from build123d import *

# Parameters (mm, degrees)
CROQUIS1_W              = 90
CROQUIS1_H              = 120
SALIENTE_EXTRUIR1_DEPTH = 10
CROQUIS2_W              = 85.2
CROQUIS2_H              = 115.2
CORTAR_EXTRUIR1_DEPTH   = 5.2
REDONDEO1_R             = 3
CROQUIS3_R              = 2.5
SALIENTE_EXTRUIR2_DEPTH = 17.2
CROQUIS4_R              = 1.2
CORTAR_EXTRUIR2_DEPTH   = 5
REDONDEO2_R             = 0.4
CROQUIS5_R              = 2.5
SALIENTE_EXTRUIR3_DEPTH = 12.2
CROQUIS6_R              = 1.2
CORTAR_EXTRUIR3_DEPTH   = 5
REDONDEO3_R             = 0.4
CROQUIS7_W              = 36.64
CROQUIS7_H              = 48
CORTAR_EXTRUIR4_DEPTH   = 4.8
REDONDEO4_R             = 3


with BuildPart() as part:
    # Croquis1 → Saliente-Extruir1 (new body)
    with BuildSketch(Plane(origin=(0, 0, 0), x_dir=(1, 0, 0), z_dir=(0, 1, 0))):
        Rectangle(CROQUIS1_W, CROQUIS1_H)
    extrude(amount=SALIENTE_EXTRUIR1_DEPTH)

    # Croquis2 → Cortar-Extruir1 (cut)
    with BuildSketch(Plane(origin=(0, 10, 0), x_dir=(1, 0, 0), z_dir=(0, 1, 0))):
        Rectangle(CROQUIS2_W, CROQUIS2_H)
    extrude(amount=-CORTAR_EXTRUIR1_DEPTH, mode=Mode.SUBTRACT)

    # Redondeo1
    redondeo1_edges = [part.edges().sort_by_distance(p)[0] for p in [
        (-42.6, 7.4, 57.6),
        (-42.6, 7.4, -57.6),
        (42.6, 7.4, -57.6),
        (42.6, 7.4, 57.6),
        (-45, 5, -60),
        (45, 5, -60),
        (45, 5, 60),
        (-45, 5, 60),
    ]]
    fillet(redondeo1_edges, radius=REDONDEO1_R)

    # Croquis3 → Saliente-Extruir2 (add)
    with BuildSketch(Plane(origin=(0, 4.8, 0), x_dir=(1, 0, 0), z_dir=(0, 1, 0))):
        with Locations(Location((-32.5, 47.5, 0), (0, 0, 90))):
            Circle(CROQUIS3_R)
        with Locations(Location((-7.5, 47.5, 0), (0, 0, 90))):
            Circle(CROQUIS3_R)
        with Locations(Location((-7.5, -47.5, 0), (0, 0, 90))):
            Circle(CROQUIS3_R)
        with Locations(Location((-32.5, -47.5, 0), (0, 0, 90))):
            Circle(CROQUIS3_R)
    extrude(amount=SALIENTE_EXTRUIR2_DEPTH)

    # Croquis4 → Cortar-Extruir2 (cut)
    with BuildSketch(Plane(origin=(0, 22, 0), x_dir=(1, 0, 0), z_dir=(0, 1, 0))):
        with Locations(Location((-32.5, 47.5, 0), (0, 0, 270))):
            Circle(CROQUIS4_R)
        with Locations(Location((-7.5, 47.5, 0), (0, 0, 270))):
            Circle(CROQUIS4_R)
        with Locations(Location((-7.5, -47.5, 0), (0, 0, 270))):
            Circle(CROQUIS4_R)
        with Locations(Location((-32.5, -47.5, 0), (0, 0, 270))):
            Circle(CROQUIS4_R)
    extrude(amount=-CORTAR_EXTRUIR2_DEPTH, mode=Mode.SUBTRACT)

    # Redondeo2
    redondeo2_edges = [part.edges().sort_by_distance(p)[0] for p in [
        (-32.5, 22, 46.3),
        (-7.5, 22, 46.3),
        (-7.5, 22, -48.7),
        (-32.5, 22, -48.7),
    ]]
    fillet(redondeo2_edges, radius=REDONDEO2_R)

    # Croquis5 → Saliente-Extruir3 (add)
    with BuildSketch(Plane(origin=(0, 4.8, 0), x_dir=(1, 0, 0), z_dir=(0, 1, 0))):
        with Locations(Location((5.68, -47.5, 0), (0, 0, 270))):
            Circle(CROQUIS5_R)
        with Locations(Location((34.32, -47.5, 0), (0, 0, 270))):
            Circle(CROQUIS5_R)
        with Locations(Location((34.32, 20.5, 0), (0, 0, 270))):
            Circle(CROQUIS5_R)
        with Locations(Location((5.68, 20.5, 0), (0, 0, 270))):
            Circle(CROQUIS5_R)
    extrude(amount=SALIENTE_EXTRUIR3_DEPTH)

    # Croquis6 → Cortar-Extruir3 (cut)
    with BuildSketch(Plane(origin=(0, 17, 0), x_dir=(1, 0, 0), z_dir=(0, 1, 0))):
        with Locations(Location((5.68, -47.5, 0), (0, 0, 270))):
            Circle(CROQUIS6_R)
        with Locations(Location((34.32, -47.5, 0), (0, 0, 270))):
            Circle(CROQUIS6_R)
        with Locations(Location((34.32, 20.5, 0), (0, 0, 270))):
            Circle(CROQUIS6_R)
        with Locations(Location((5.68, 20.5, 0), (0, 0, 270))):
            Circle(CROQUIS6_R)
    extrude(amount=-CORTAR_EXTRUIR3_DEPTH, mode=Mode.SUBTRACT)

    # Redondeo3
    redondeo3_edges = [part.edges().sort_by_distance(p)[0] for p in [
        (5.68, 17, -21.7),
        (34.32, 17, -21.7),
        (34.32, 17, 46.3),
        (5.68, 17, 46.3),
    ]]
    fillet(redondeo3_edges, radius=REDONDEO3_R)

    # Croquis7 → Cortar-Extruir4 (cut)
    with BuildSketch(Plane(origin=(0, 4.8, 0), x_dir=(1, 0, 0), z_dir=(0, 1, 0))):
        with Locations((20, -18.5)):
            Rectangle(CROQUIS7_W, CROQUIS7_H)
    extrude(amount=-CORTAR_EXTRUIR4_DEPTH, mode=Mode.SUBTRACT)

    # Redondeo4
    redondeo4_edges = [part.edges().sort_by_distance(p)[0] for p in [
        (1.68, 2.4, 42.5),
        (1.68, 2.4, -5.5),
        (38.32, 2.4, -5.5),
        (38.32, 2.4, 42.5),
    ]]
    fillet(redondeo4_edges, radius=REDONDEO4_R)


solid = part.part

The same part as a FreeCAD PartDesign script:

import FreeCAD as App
import Part
import Sketcher
from FreeCAD import Vector


def edges_at(feature, points):
    """Names of the edges that pass closest to the given points."""
    edges = feature.Shape.Edges
    near = lambda p: min(range(len(edges)), key=lambda i: edges[i].distToShape(Part.Vertex(*p))[0])
    return sorted({f"Edge{near(p) + 1}" for p in points})


def add_polygon(sketch, points):
    """Adds a closed chain of lines whose ends are joined by coincident constraints."""
    first, n = sketch.GeometryCount, len(points)
    for a, b in zip(points, points[1:] + points[:1]):
        sketch.addGeometry(Part.LineSegment(App.Vector(*a, 0), App.Vector(*b, 0)), False)
    for i in range(n):
        sketch.addConstraint(Sketcher.Constraint("Coincident", first + i, 2, first + (i + 1) % n, 1))

doc = App.newDocument("Part")
body = doc.addObject("PartDesign::Body", "Body")

# Sketch on XZ plane
sketch1 = body.newObject("Sketcher::SketchObject", "Sketch")
sketch1.AttachmentSupport = (doc.getObject("XZ_Plane"), [""])
sketch1.MapMode = "FlatFace"
add_polygon(sketch1, [(-45, -60), (-45, 60), (45, 60), (45, -60)])  # lines 0-3
sketch1.addConstraint(Sketcher.Constraint("Vertical", 0))
sketch1.addConstraint(Sketcher.Constraint("Horizontal", 1))
sketch1.addConstraint(Sketcher.Constraint("Vertical", 2))
sketch1.addConstraint(Sketcher.Constraint("Horizontal", 3))
sketch1.addConstraint(Sketcher.Constraint("Symmetric", 0, 2, 2, 2, -1, 1))
sketch1.addConstraint(Sketcher.Constraint("DistanceX", 1, 1, 1, 2, 90.0))
sketch1.addConstraint(Sketcher.Constraint("DistanceY", 0, 1, 0, 2, 120.0))
pad1 = body.newObject("PartDesign::Pad", "Pad")
pad1.Profile = sketch1
pad1.Length = 10
pad1.Reversed = True

# Sketch on XZ plane
sketch2 = body.newObject("Sketcher::SketchObject", "Sketch001")
sketch2.AttachmentSupport = (doc.getObject("XZ_Plane"), [""])
sketch2.MapMode = "FlatFace"
sketch2.AttachmentOffset = App.Placement(Vector(0, 0, -10), App.Rotation())
add_polygon(sketch2, [(-43, -58), (-43, 58), (43, 58), (43, -58)])  # lines 0-3
sketch2.addConstraint(Sketcher.Constraint("Vertical", 0))
sketch2.addConstraint(Sketcher.Constraint("Horizontal", 1))
sketch2.addConstraint(Sketcher.Constraint("Vertical", 2))
sketch2.addConstraint(Sketcher.Constraint("Horizontal", 3))
sketch2.addConstraint(Sketcher.Constraint("Symmetric", 0, 2, 2, 2, -1, 1))
sketch2.addConstraint(Sketcher.Constraint("DistanceX", 1, 1, 1, 2, 85.2))
sketch2.addConstraint(Sketcher.Constraint("DistanceY", 0, 1, 0, 2, 115.2))
pocket1 = body.newObject("PartDesign::Pocket", "Pocket")
pocket1.Profile = sketch2
pocket1.Length = 5.2
pocket1.Reversed = True
doc.recompute()

fillet = body.newObject("PartDesign::Fillet", "Fillet")
fillet.Base = (pocket1, edges_at(pocket1, [
    (-42.6, 7.4, 57.6),
    (-42.6, 7.4, -57.6),
    (42.6, 7.4, -57.6),
    (42.6, 7.4, 57.6),
    (-45, 5, -60),
    (45, 5, -60),
    (45, 5, 60),
    (-45, 5, 60),
]))
fillet.Radius = 3

# Sketch on XZ plane
sketch3 = body.newObject("Sketcher::SketchObject", "Sketch002")
sketch3.AttachmentSupport = (doc.getObject("XZ_Plane"), [""])
sketch3.MapMode = "FlatFace"
sketch3.AttachmentOffset = App.Placement(Vector(0, 0, -4.8), App.Rotation())
sketch3.addGeometry(Part.Circle(Vector(-32.5, -47.5, 0), Vector(0, 0, 1), 2.5), False)
sketch3.addGeometry(Part.Circle(Vector(-7.5, -47.5, 0), Vector(0, 0, 1), 2.5), False)
sketch3.addGeometry(Part.Circle(Vector(-7.5, 47.5, 0), Vector(0, 0, 1), 2.5), False)
sketch3.addGeometry(Part.Circle(Vector(-32.5, 47.5, 0), Vector(0, 0, 1), 2.5), False)
sketch3.addConstraint(Sketcher.Constraint("Equal", 0, 1))
sketch3.addConstraint(Sketcher.Constraint("Equal", 1, 2))
sketch3.addConstraint(Sketcher.Constraint("Equal", 2, 3))
sketch3.addConstraint(Sketcher.Constraint("Symmetric", 1, 3, 2, 3, -1))
sketch3.addConstraint(Sketcher.Constraint("Symmetric", 0, 3, 3, 3, -1))
sketch3.addConstraint(Sketcher.Constraint("Horizontal", 0, 3, 1, 3))
sketch3.addConstraint(Sketcher.Constraint("Diameter", 0, 5.0))
sketch3.addConstraint(Sketcher.Constraint("DistanceX", 0, 3, 1, 3, 25.0))
sketch3.addConstraint(Sketcher.Constraint("DistanceY", 1, 3, 2, 3, 95.0))
sketch3.addConstraint(Sketcher.Constraint("DistanceX", 0, 3, -1, 1, 32.5))
pad2 = body.newObject("PartDesign::Pad", "Pad001")
pad2.Profile = sketch3
pad2.Length = 17.2
pad2.Reversed = True

# Sketch on XZ plane
sketch4 = body.newObject("Sketcher::SketchObject", "Sketch003")
sketch4.AttachmentSupport = (doc.getObject("XZ_Plane"), [""])
sketch4.MapMode = "FlatFace"
sketch4.AttachmentOffset = App.Placement(Vector(0, 0, -22), App.Rotation())
sketch4.addGeometry(Part.Circle(Vector(-32.5, -47.5, 0), Vector(0, 0, 1), 1.2), False)
sketch4.addGeometry(Part.Circle(Vector(-7.5, -47.5, 0), Vector(0, 0, 1), 1.2), False)
sketch4.addGeometry(Part.Circle(Vector(-7.5, 47.5, 0), Vector(0, 0, 1), 1.2), False)
sketch4.addGeometry(Part.Circle(Vector(-32.5, 47.5, 0), Vector(0, 0, 1), 1.2), False)
sketch4.addConstraint(Sketcher.Constraint("Equal", 0, 1))
sketch4.addConstraint(Sketcher.Constraint("Equal", 1, 2))
sketch4.addConstraint(Sketcher.Constraint("Equal", 2, 3))
sketch4.addConstraint(Sketcher.Constraint("Symmetric", 1, 3, 2, 3, -1))
sketch4.addConstraint(Sketcher.Constraint("Symmetric", 0, 3, 3, 3, -1))
sketch4.addConstraint(Sketcher.Constraint("Horizontal", 0, 3, 1, 3))
sketch4.addConstraint(Sketcher.Constraint("Diameter", 0, 2.4))
sketch4.addConstraint(Sketcher.Constraint("DistanceX", 0, 3, 1, 3, 25.0))
sketch4.addConstraint(Sketcher.Constraint("DistanceY", 1, 3, 2, 3, 95.0))
sketch4.addConstraint(Sketcher.Constraint("DistanceX", 0, 3, -1, 1, 32.5))
pocket2 = body.newObject("PartDesign::Pocket", "Pocket001")
pocket2.Profile = sketch4
pocket2.Length = 5
pocket2.Reversed = True
doc.recompute()

fillet2 = body.newObject("PartDesign::Fillet", "Fillet001")
fillet2.Base = (pocket2, edges_at(pocket2, [
    (-32.5, 22, 46.3),
    (-7.5, 22, 46.3),
    (-7.5, 22, -48.7),
    (-32.5, 22, -48.7),
]))
fillet2.Radius = 0.4

# Sketch on XZ plane
sketch5 = body.newObject("Sketcher::SketchObject", "Sketch004")
sketch5.AttachmentSupport = (doc.getObject("XZ_Plane"), [""])
sketch5.MapMode = "FlatFace"
sketch5.AttachmentOffset = App.Placement(Vector(0, 0, -4.8), App.Rotation())
sketch5.addGeometry(Part.Circle(Vector(5.7, 47.5, 0), Vector(0, 0, 1), 2.5), False)
sketch5.addGeometry(Part.Circle(Vector(34.3, 47.5, 0), Vector(0, 0, 1), 2.5), False)
sketch5.addGeometry(Part.Circle(Vector(34.3, -20.5, 0), Vector(0, 0, 1), 2.5), False)
sketch5.addGeometry(Part.Circle(Vector(5.7, -20.5, 0), Vector(0, 0, 1), 2.5), False)
sketch5.addConstraint(Sketcher.Constraint("Equal", 0, 1))
sketch5.addConstraint(Sketcher.Constraint("Equal", 1, 2))
sketch5.addConstraint(Sketcher.Constraint("Equal", 2, 3))
sketch5.addConstraint(Sketcher.Constraint("Horizontal", 0, 3, 1, 3))
sketch5.addConstraint(Sketcher.Constraint("Horizontal", 2, 3, 3, 3))
sketch5.addConstraint(Sketcher.Constraint("Vertical", 1, 3, 2, 3))
sketch5.addConstraint(Sketcher.Constraint("Vertical", 0, 3, 3, 3))
sketch5.addConstraint(Sketcher.Constraint("Diameter", 0, 5.0))
sketch5.addConstraint(Sketcher.Constraint("DistanceY", 2, 3, 1, 3, 68.0))
sketch5.addConstraint(Sketcher.Constraint("DistanceY", -1, 1, 0, 3, 47.5))
sketch5.addConstraint(Sketcher.Constraint("DistanceX", -1, 1, 0, 3, 5.68))
sketch5.addConstraint(Sketcher.Constraint("DistanceX", -1, 1, 1, 3, 34.32))
pad3 = body.newObject("PartDesign::Pad", "Pad002")
pad3.Profile = sketch5
pad3.Length = 12.2
pad3.Reversed = True

# Sketch on XZ plane
sketch6 = body.newObject("Sketcher::SketchObject", "Sketch005")
sketch6.AttachmentSupport = (doc.getObject("XZ_Plane"), [""])
sketch6.MapMode = "FlatFace"
sketch6.AttachmentOffset = App.Placement(Vector(0, 0, -17), App.Rotation())
sketch6.addGeometry(Part.Circle(Vector(5.7, 47.5, 0), Vector(0, 0, 1), 1.2), False)
sketch6.addGeometry(Part.Circle(Vector(34.3, 47.5, 0), Vector(0, 0, 1), 1.2), False)
sketch6.addGeometry(Part.Circle(Vector(34.3, -20.5, 0), Vector(0, 0, 1), 1.2), False)
sketch6.addGeometry(Part.Circle(Vector(5.7, -20.5, 0), Vector(0, 0, 1), 1.2), False)
sketch6.addConstraint(Sketcher.Constraint("Equal", 0, 1))
sketch6.addConstraint(Sketcher.Constraint("Equal", 1, 2))
sketch6.addConstraint(Sketcher.Constraint("Equal", 2, 3))
sketch6.addConstraint(Sketcher.Constraint("Horizontal", 0, 3, 1, 3))
sketch6.addConstraint(Sketcher.Constraint("Horizontal", 2, 3, 3, 3))
sketch6.addConstraint(Sketcher.Constraint("Vertical", 1, 3, 2, 3))
sketch6.addConstraint(Sketcher.Constraint("Vertical", 0, 3, 3, 3))
sketch6.addConstraint(Sketcher.Constraint("Diameter", 0, 2.4))
sketch6.addConstraint(Sketcher.Constraint("DistanceY", 2, 3, 1, 3, 68.0))
sketch6.addConstraint(Sketcher.Constraint("DistanceY", -1, 1, 0, 3, 47.5))
sketch6.addConstraint(Sketcher.Constraint("DistanceX", -1, 1, 0, 3, 5.68))
sketch6.addConstraint(Sketcher.Constraint("DistanceX", -1, 1, 1, 3, 34.32))
pocket3 = body.newObject("PartDesign::Pocket", "Pocket002")
pocket3.Profile = sketch6
pocket3.Length = 5
pocket3.Reversed = True
doc.recompute()

fillet3 = body.newObject("PartDesign::Fillet", "Fillet002")
fillet3.Base = (pocket3, edges_at(pocket3, [
    (5.68, 17, -21.7),
    (34.32, 17, -21.7),
    (34.32, 17, 46.3),
    (5.68, 17, 46.3),
]))
fillet3.Radius = 0.4

# Sketch on XZ plane
sketch7 = body.newObject("Sketcher::SketchObject", "Sketch006")
sketch7.AttachmentSupport = (doc.getObject("XZ_Plane"), [""])
sketch7.MapMode = "FlatFace"
sketch7.AttachmentOffset = App.Placement(Vector(0, 0, -4.8), App.Rotation())
add_polygon(sketch7, [(2, -6), (2, 42), (38, 42), (38, -6)])  # lines 0-3
sketch7.addConstraint(Sketcher.Constraint("Vertical", 0))
sketch7.addConstraint(Sketcher.Constraint("Horizontal", 1))
sketch7.addConstraint(Sketcher.Constraint("Vertical", 2))
sketch7.addConstraint(Sketcher.Constraint("Horizontal", 3))
sketch7.addConstraint(Sketcher.Constraint("DistanceY", 0, 1, 0, 2, 48.0))
sketch7.addConstraint(Sketcher.Constraint("DistanceX", 1, 1, 1, 2, 36.64))
sketch7.addConstraint(Sketcher.Constraint("DistanceY", -1, 1, 0, 2, 42.5))
sketch7.addConstraint(Sketcher.Constraint("DistanceX", -1, 1, 0, 2, 1.68))
pocket4 = body.newObject("PartDesign::Pocket", "Pocket003")
pocket4.Profile = sketch7
pocket4.Length = 4.8
pocket4.Reversed = True
doc.recompute()

fillet4 = body.newObject("PartDesign::Fillet", "Fillet003")
fillet4.Base = (pocket4, edges_at(pocket4, [
    (1.68, 2.4, 42.5),
    (1.68, 2.4, -5.5),
    (38.32, 2.4, -5.5),
    (38.32, 2.4, 42.5),
]))
fillet4.Radius = 3

doc.recompute()
